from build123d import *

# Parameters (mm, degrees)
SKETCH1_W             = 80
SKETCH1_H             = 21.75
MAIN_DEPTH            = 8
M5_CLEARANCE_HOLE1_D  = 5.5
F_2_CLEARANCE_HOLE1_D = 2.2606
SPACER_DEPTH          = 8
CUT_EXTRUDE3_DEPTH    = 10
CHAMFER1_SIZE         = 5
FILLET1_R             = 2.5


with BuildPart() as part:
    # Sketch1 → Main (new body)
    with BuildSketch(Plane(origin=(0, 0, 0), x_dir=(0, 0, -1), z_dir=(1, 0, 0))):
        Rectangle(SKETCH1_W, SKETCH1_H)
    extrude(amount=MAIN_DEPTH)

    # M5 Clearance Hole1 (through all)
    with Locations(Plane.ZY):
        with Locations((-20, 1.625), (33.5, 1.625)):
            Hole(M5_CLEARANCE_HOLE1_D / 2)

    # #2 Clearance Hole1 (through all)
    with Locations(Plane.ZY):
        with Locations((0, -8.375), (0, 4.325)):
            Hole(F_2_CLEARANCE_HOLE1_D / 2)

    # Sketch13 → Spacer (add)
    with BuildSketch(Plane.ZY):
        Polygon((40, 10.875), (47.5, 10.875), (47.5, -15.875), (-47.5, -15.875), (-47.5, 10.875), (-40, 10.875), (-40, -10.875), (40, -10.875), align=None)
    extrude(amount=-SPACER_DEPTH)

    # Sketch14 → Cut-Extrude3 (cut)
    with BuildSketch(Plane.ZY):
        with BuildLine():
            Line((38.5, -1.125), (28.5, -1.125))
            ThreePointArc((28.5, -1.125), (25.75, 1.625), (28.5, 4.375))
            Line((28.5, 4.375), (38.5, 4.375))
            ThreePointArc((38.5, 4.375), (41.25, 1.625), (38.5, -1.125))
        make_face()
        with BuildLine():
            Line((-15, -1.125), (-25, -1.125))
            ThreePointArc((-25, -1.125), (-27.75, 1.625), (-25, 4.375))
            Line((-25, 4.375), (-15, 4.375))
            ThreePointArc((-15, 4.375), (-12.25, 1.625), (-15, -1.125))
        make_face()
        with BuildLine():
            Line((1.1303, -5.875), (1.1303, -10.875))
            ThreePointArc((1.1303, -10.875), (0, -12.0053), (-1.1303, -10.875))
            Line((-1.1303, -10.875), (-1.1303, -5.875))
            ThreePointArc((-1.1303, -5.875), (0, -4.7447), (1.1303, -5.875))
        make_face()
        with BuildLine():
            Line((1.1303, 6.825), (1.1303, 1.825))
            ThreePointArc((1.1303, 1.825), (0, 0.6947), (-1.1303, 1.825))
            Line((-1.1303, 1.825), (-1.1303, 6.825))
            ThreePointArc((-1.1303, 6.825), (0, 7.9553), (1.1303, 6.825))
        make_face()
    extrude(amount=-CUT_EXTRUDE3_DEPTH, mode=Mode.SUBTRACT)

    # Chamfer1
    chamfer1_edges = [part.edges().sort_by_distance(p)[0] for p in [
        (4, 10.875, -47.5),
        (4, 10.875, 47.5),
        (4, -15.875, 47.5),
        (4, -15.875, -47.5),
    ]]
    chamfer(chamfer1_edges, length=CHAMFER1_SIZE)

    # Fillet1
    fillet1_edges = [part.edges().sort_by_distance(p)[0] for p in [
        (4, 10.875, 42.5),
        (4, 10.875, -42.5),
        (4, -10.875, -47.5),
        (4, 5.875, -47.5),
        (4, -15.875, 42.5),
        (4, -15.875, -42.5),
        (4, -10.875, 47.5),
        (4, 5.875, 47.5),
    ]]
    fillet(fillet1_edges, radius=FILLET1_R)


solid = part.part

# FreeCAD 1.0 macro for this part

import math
import FreeCAD as App
import Part
import Sketcher
Q = App.Units.Quantity


def edges_at(feature, points):
    """Names of the edges that pass closest to the given points."""
    edges = feature.Shape.Edges
    near = lambda p: min(range(len(edges)), key=lambda i: edges[i].distToShape(Part.Vertex(*p))[0])
    return sorted({f"Edge{near(p) + 1}" for p in points})


def add_polygon(sketch, points):
    """Adds a closed chain of lines whose ends are joined by coincident constraints."""
    first, n = sketch.GeometryCount, len(points)
    for a, b in zip(points, points[1:] + points[:1]):
        sketch.addGeometry(Part.LineSegment(App.Vector(*a, 0), App.Vector(*b, 0)), False)
    for i in range(n):
        sketch.addConstraint(Sketcher.Constraint("Coincident", first + i, 2, first + (i + 1) % n, 1))

doc = App.newDocument("Part")
params = doc.addObject("Spreadsheet::Sheet", "Params")
for row, (alias, value) in enumerate([
    ("sketch1_height", "80 mm"),
    ("sketch1_width", "21.75 mm"),
    ("pad1_length", "8 mm"),
    ("sketch2_diameter", "5.5 mm"),
    ("hole_diameter", "5.5 mm"),
    ("hole2_diameter", "2.2606 mm"),
    ("sketch4_height", "80 mm"),
    ("sketch4_height2", "95 mm"),
    ("sketch4_width", "21.75 mm"),
    ("pad2_length", "8 mm"),
    ("sketch5_width", "5 mm"),
    ("sketch5_height", "10 mm"),
    ("sketch5_radius", "2.75 mm"),
    ("pocket1_length", "10 mm"),
    ("chamfer_size", "5 mm"),
    ("fillet_radius", "2.5 mm"),
], start=1):
    params.set(f"A{row}", alias)
    params.set(f"B{row}", "=" + value)
    params.setAlias(f"B{row}", alias)

body = doc.addObject("PartDesign::Body", "Body")

sketch1 = body.newObject("Sketcher::SketchObject", "Sketch")
sketch1.AttachmentSupport = (doc.getObject("YZ_Plane"), [""])
sketch1.MapMode = "FlatFace"
add_polygon(sketch1, [(11, 40), (-11, 40), (-11, -40), (11, -40)])
sketch1.addConstraint([
    Sketcher.Constraint("Horizontal", 0),
    Sketcher.Constraint("Vertical", 1),
    Sketcher.Constraint("Horizontal", 2),
    Sketcher.Constraint("Vertical", 3),
    Sketcher.Constraint("Symmetric", 0, 2, 2, 2, -1, 1),
    Sketcher.Constraint("DistanceY", 1, 2, 1, 1, Q("80 mm")),
    Sketcher.Constraint("DistanceX", 0, 2, 0, 1, Q("21.75 mm")),
])
sketch1.setExpression("Constraints[9]", "Params.sketch1_height")
sketch1.setExpression("Constraints[10]", "Params.sketch1_width")
pad1 = body.newObject("PartDesign::Pad", "Pad")
pad1.Profile = sketch1
pad1.setExpression("Length", "Params.pad1_length")

sketch2 = body.newObject("Sketcher::SketchObject", "Sketch001")
sketch2.AttachmentSupport = (doc.getObject("YZ_Plane"), [""])
sketch2.MapMode = "FlatFace"
sketch2.addGeometry([
    Part.Circle(App.Vector(1.6, -20, 0), App.Vector(0, 0, 1), 2.8),
    Part.Circle(App.Vector(1.6, 33.5, 0), App.Vector(0, 0, 1), 2.8),
], False)
sketch2.addConstraint([
    Sketcher.Constraint("Equal", 0, 1),
    Sketcher.Constraint("Vertical", 0, 3, 1, 3),
    Sketcher.Constraint("Diameter", 0, Q("5.5 mm")),
    Sketcher.Constraint("DistanceY", 0, 3, -1, 1, Q("20 mm")),
    Sketcher.Constraint("DistanceY", -1, 1, 1, 3, Q("33.5 mm")),
    Sketcher.Constraint("DistanceX", -1, 1, 0, 3, Q("1.625 mm")),
])
sketch2.setExpression("Constraints[2]", "Params.sketch2_diameter")
doc.recompute()
hole = body.newObject("PartDesign::Hole", "Hole")
hole.Profile = sketch2
hole.ThreadType = "None"
hole.setExpression("Diameter", "Params.hole_diameter")
hole.DepthType = "ThroughAll"
hole.Reversed = True

sketch3 = body.newObject("Sketcher::SketchObject", "Sketch002")
sketch3.AttachmentSupport = (doc.getObject("YZ_Plane"), [""])
sketch3.MapMode = "FlatFace"
sketch3.addGeometry([
    Part.Circle(App.Vector(-8.4, 0, 0), App.Vector(0, 0, 1), 1.1),
    Part.Circle(App.Vector(4.3, 0, 0), App.Vector(0, 0, 1), 1.1),
], False)
sketch3.addConstraint([
    Sketcher.Constraint("Equal", 0, 1),
    Sketcher.Constraint("PointOnObject", 0, 3, -1),
    Sketcher.Constraint("PointOnObject", 1, 3, -1),
    Sketcher.Constraint("Diameter", 0, Q("2.2606 mm")),
    Sketcher.Constraint("DistanceX", 0, 3, 1, 3, Q("12.7 mm")),
    Sketcher.Constraint("DistanceX", 0, 3, -1, 1, Q("8.375 mm")),
])
doc.recompute()
hole2 = body.newObject("PartDesign::Hole", "Hole001")
hole2.Profile = sketch3
hole2.ThreadType = "None"
hole2.setExpression("Diameter", "Params.hole2_diameter")
hole2.DepthType = "ThroughAll"
hole2.Reversed = True

sketch4 = body.newObject("Sketcher::SketchObject", "Sketch003")
sketch4.AttachmentSupport = (doc.getObject("YZ_Plane"), [""])
sketch4.MapMode = "FlatFace"
add_polygon(sketch4, [(11, 48), (11, 40), (-11, 40), (-11, -40), (11, -40), (11, -48), (-16, -48), (-16, 48)])
sketch4.addConstraint([
    Sketcher.Constraint("Vertical", 0),
    Sketcher.Constraint("Horizontal", 1),
    Sketcher.Constraint("Vertical", 2),
    Sketcher.Constraint("Horizontal", 3),
    Sketcher.Constraint("Vertical", 4),
    Sketcher.Constraint("Horizontal", 5),
    Sketcher.Constraint("Vertical", 6),
    Sketcher.Constraint("Horizontal", 7),
    Sketcher.Constraint("Symmetric", 0, 2, 2, 2, -1, 1),
    Sketcher.Constraint("Symmetric", 4, 2, 7, 2, -1),
    Sketcher.Constraint("DistanceY", 2, 2, 2, 1, Q("80 mm")),
    Sketcher.Constraint("DistanceY", 6, 1, 6, 2, Q("95 mm")),
    Sketcher.Constraint("DistanceX", 5, 2, 2, 2, Q("5 mm")),
    Sketcher.Constraint("DistanceX", 1, 2, 1, 1, Q("21.75 mm")),
])
sketch4.setExpression("Constraints[18]", "Params.sketch4_height")
sketch4.setExpression("Constraints[19]", "Params.sketch4_height2")
sketch4.setExpression("Constraints[21]", "Params.sketch4_width")
pad2 = body.newObject("PartDesign::Pad", "Pad001")
pad2.Profile = sketch4
pad2.setExpression("Length", "Params.pad2_length")

sketch5 = body.newObject("Sketcher::SketchObject", "Sketch004")
sketch5.AttachmentSupport = (doc.getObject("YZ_Plane"), [""])
sketch5.MapMode = "FlatFace"
sketch5.addGeometry([
    Part.LineSegment(App.Vector(-1.1, 28.5, 0), App.Vector(-1.1, 38.5, 0)),
    Part.ArcOfCircle(Part.Circle(App.Vector(1.6, 38.5, 0), App.Vector(0, 0, 1), 2.8), math.radians(0), math.radians(180)),
    Part.LineSegment(App.Vector(4.4, 38.5, 0), App.Vector(4.4, 28.5, 0)),
    Part.ArcOfCircle(Part.Circle(App.Vector(1.6, 28.5, 0), App.Vector(0, 0, 1), 2.8), math.radians(180), math.radians(360)),
    Part.LineSegment(App.Vector(-1.1, -25, 0), App.Vector(-1.1, -15, 0)),
    Part.ArcOfCircle(Part.Circle(App.Vector(1.6, -15, 0), App.Vector(0, 0, 1), 2.8), math.radians(0), math.radians(180)),
    Part.LineSegment(App.Vector(4.4, -15, 0), App.Vector(4.4, -25, 0)),
    Part.ArcOfCircle(Part.Circle(App.Vector(1.6, -25, 0), App.Vector(0, 0, 1), 2.8), math.radians(180), math.radians(360)),
    Part.LineSegment(App.Vector(-10.9, 1.1, 0), App.Vector(-5.9, 1.1, 0)),
    Part.ArcOfCircle(Part.Circle(App.Vector(-5.9, 0, 0), App.Vector(0, 0, 1), 1.1), math.radians(-90), math.radians(90)),
    Part.LineSegment(App.Vector(-5.9, -1.1, 0), App.Vector(-10.9, -1.1, 0)),
    Part.ArcOfCircle(Part.Circle(App.Vector(-10.9, 0, 0), App.Vector(0, 0, 1), 1.1), math.radians(90), math.radians(270)),
    Part.LineSegment(App.Vector(1.8, 1.1, 0), App.Vector(6.8, 1.1, 0)),
    Part.ArcOfCircle(Part.Circle(App.Vector(6.8, 0, 0), App.Vector(0, 0, 1), 1.1), math.radians(-90), math.radians(90)),
    Part.LineSegment(App.Vector(6.8, -1.1, 0), App.Vector(1.8, -1.1, 0)),
    Part.ArcOfCircle(Part.Circle(App.Vector(1.8, 0, 0), App.Vector(0, 0, 1), 1.1), math.radians(90), math.radians(270)),
], False)
sketch5.addConstraint([
    Sketcher.Constraint("Tangent", 0, 2, 1, 2),
    Sketcher.Constraint("Tangent", 1, 1, 2, 1),
    Sketcher.Constraint("Tangent", 2, 2, 3, 2),
    Sketcher.Constraint("Tangent", 3, 1, 0, 1),
    Sketcher.Constraint("Tangent", 4, 2, 5, 2),
    Sketcher.Constraint("Tangent", 5, 1, 6, 1),
    Sketcher.Constraint("Tangent", 6, 2, 7, 2),
    Sketcher.Constraint("Tangent", 7, 1, 4, 1),
    Sketcher.Constraint("Tangent", 8, 2, 9, 2),
    Sketcher.Constraint("Tangent", 9, 1, 10, 1),
    Sketcher.Constraint("Tangent", 10, 2, 11, 2),
    Sketcher.Constraint("Tangent", 11, 1, 8, 1),
    Sketcher.Constraint("Tangent", 12, 2, 13, 2),
    Sketcher.Constraint("Tangent", 13, 1, 14, 1),
    Sketcher.Constraint("Tangent", 14, 2, 15, 2),
    Sketcher.Constraint("Tangent", 15, 1, 12, 1),
    Sketcher.Constraint("Vertical", 0),
    Sketcher.Constraint("Vertical", 2),
    Sketcher.Constraint("Vertical", 4),
    Sketcher.Constraint("Vertical", 6),
    Sketcher.Constraint("Horizontal", 8),
    Sketcher.Constraint("Horizontal", 10),
    Sketcher.Constraint("Horizontal", 12),
    Sketcher.Constraint("Horizontal", 14),
    Sketcher.Constraint("Equal", 3, 5),
    Sketcher.Constraint("Equal", 11, 13),
    Sketcher.Constraint("PointOnObject", 9, 3, -1),
    Sketcher.Constraint("PointOnObject", 13, 3, -1),
    Sketcher.Constraint("Vertical", 3, 3, 5, 3),
    Sketcher.Constraint("Equal", 10, 12),
    Sketcher.Constraint("Equal", 2, 4),
    Sketcher.Constraint("DistanceX", 8, 1, 8, 2, Q("5 mm")),
    Sketcher.Constraint("DistanceY", 0, 1, 0, 2, Q("10 mm")),
    Sketcher.Constraint("Radius", 1, Q("2.75 mm")),
    Sketcher.Constraint("DistanceY", 5, 3, -1, 1, Q("15 mm")),
    Sketcher.Constraint("DistanceY", -1, 1, 1, 3, Q("38.5 mm")),
    Sketcher.Constraint("Radius", 9, Q("1.1303 mm")),
    Sketcher.Constraint("DistanceX", 9, 3, 5, 3, Q("7.5 mm")),
    Sketcher.Constraint("DistanceX", 9, 3, 13, 3, Q("12.7 mm")),
    Sketcher.Constraint("DistanceX", -1, 1, 1, 3, Q("1.625 mm")),
])
sketch5.setExpression("Constraints[31]", "Params.sketch5_width")
sketch5.setExpression("Constraints[32]", "Params.sketch5_height")
sketch5.setExpression("Constraints[33]", "Params.sketch5_radius")
pocket1 = body.newObject("PartDesign::Pocket", "Pocket")
pocket1.Profile = sketch5
pocket1.setExpression("Length", "Params.pocket1_length")
pocket1.Reversed = True
doc.recompute()

chamfer = body.newObject("PartDesign::Chamfer", "Chamfer")
chamfer.Base = (pocket1, edges_at(pocket1, [
    (4, 10.875, -47.5),
    (4, 10.875, 47.5),
    (4, -15.875, 47.5),
    (4, -15.875, -47.5),
]))
chamfer.setExpression("Size", "Params.chamfer_size")
doc.recompute()

fillet = body.newObject("PartDesign::Fillet", "Fillet")
fillet.Base = (chamfer, edges_at(chamfer, [
    (4, 10.875, 42.5),
    (4, 10.875, -42.5),
    (4, -10.875, -47.5),
    (4, 5.875, -47.5),
    (4, -15.875, 42.5),
    (4, -15.875, -42.5),
    (4, -10.875, 47.5),
    (4, 5.875, 47.5),
]))
fillet.setExpression("Radius", "Params.fillet_radius")

doc.recompute()
